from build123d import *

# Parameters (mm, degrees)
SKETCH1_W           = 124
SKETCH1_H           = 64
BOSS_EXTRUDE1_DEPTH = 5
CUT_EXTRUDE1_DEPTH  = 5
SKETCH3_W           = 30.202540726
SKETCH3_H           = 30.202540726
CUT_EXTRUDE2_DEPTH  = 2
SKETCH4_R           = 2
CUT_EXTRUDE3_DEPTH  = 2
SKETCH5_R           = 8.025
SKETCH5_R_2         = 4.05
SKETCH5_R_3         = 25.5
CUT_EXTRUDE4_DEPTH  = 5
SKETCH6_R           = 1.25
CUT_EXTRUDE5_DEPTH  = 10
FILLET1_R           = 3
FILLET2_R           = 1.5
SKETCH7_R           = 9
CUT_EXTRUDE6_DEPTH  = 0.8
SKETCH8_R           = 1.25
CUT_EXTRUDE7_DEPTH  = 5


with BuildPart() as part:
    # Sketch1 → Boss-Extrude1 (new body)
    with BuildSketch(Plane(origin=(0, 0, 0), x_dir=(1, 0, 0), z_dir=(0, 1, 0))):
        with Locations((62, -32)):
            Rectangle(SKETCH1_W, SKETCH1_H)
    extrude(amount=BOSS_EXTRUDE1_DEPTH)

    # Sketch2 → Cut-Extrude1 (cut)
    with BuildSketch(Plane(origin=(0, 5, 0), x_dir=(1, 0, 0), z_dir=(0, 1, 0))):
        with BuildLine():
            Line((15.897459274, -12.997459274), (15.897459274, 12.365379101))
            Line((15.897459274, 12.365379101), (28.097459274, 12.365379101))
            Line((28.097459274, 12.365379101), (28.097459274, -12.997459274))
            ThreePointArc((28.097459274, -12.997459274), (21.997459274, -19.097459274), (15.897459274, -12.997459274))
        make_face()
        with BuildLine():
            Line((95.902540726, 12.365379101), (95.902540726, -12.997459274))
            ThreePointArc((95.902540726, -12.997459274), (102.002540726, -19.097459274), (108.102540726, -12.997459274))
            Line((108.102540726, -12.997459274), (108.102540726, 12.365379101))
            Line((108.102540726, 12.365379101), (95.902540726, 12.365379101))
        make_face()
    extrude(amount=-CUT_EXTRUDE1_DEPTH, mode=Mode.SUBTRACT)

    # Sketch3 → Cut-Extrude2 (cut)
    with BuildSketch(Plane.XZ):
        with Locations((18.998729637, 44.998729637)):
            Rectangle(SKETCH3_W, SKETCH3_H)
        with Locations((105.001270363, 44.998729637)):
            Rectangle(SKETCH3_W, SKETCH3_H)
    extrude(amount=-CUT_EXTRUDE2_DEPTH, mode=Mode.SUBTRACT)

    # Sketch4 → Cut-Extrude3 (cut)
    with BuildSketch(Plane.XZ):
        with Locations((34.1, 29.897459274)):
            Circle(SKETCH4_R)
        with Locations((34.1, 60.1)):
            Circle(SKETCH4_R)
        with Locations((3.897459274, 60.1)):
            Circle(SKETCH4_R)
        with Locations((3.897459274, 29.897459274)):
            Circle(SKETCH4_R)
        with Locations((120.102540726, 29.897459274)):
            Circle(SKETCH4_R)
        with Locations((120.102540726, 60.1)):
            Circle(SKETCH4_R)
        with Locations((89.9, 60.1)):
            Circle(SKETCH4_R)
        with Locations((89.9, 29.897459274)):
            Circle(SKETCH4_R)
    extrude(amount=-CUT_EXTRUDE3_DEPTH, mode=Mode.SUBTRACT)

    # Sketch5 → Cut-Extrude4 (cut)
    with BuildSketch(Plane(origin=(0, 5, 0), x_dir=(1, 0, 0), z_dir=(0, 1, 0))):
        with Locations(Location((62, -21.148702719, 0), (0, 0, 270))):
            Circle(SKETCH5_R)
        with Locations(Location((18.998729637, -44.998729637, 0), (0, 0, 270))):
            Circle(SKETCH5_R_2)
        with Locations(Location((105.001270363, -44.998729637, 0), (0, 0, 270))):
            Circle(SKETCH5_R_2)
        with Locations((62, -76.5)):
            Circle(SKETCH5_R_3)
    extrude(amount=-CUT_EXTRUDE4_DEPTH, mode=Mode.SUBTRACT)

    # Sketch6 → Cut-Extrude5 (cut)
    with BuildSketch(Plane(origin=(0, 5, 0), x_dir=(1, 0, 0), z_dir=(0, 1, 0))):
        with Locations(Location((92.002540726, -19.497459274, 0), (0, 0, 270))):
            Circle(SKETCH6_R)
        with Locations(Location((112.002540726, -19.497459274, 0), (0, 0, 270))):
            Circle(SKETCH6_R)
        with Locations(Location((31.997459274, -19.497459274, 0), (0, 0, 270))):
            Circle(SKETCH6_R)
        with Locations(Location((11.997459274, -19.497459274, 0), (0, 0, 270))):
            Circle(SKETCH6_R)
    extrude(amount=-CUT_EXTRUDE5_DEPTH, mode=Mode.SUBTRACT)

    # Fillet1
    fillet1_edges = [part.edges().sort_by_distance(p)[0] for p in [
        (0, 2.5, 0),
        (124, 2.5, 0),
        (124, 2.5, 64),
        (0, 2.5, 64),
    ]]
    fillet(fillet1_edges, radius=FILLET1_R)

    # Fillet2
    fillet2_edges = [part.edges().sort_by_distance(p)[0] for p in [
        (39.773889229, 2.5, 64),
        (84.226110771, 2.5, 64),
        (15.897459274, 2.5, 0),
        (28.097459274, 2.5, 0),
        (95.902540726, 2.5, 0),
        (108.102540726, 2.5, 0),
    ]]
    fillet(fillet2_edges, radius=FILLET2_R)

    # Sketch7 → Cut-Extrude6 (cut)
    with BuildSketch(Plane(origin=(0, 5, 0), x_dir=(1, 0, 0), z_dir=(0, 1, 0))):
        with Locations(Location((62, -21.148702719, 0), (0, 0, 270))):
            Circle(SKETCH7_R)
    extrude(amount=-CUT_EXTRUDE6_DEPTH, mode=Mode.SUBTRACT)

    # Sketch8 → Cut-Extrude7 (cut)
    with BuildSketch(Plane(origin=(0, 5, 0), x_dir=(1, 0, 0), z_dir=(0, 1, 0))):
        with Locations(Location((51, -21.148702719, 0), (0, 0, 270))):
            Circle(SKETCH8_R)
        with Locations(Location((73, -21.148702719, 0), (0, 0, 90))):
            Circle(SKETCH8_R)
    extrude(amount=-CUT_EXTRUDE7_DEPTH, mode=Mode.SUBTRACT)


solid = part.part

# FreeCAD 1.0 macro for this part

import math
import FreeCAD as App
import Part
import Sketcher
from FreeCAD import Vector
Q = App.Units.Quantity


def edges_at(feature, points):
    """Names of the edges that pass closest to the given points."""
    edges = feature.Shape.Edges
    near = lambda p: min(range(len(edges)), key=lambda i: edges[i].distToShape(Part.Vertex(*p))[0])
    return sorted({f"Edge{near(p) + 1}" for p in points})


def add_polygon(sketch, points):
    """Adds a closed chain of lines whose ends are joined by coincident constraints."""
    first, n = sketch.GeometryCount, len(points)
    for a, b in zip(points, points[1:] + points[:1]):
        sketch.addGeometry(Part.LineSegment(App.Vector(*a, 0), App.Vector(*b, 0)), False)
    for i in range(n):
        sketch.addConstraint(Sketcher.Constraint("Coincident", first + i, 2, first + (i + 1) % n, 1))

doc = App.newDocument("Part")
body = doc.addObject("PartDesign::Body", "Body")

sketch1 = body.newObject("Sketcher::SketchObject", "Sketch")
sketch1.AttachmentSupport = (doc.getObject("XZ_Plane"), [""])
sketch1.MapMode = "FlatFace"
add_polygon(sketch1, [(0, 0), (0, 64), (124, 64), (124, 0)])
sketch1.addConstraint(Sketcher.Constraint("Vertical", 0))
sketch1.addConstraint(Sketcher.Constraint("Horizontal", 1))
sketch1.addConstraint(Sketcher.Constraint("Vertical", 2))
sketch1.addConstraint(Sketcher.Constraint("Horizontal", 3))
sketch1.addConstraint(Sketcher.Constraint("Coincident", 3, 2, -1, 1))
sketch1.addConstraint(Sketcher.Constraint("DistanceX", 1, 1, 1, 2, Q("124 mm")))
sketch1.addConstraint(Sketcher.Constraint("DistanceY", 0, 1, 0, 2, Q("64 mm")))
pad1 = body.newObject("PartDesign::Pad", "Pad")
pad1.Profile = sketch1
pad1.Length = 5
pad1.Reversed = True

sketch2 = body.newObject("Sketcher::SketchObject", "Sketch001")
sketch2.AttachmentSupport = (doc.getObject("XZ_Plane"), [""])
sketch2.MapMode = "FlatFace"
sketch2.AttachmentOffset = App.Placement(Vector(0, 0, -5), App.Rotation())
sketch2.addGeometry(Part.LineSegment(Vector(16, -12, 0), Vector(16, 13, 0)), False)
sketch2.addGeometry(Part.ArcOfCircle(Part.Circle(Vector(22, 13, 0), Vector(0, 0, 1), 6), math.radians(0), math.radians(180)), False)
sketch2.addGeometry(Part.LineSegment(Vector(28, 13, 0), Vector(28, -12, 0)), False)
sketch2.addGeometry(Part.LineSegment(Vector(28, -12, 0), Vector(16, -12, 0)), False)
sketch2.addGeometry(Part.LineSegment(Vector(96, -12, 0), Vector(96, 13, 0)), False)
sketch2.addGeometry(Part.ArcOfCircle(Part.Circle(Vector(102, 13, 0), Vector(0, 0, 1), 6), math.radians(0), math.radians(180)), False)
sketch2.addGeometry(Part.LineSegment(Vector(108, 13, 0), Vector(108, -12, 0)), False)
sketch2.addGeometry(Part.LineSegment(Vector(108, -12, 0), Vector(96, -12, 0)), False)
sketch2.addConstraint(Sketcher.Constraint("Tangent", 0, 2, 1, 2))
sketch2.addConstraint(Sketcher.Constraint("Tangent", 1, 1, 2, 1))
sketch2.addConstraint(Sketcher.Constraint("Coincident", 2, 2, 3, 1))
sketch2.addConstraint(Sketcher.Constraint("Coincident", 3, 2, 0, 1))
sketch2.addConstraint(Sketcher.Constraint("Tangent", 4, 2, 5, 2))
sketch2.addConstraint(Sketcher.Constraint("Tangent", 5, 1, 6, 1))
sketch2.addConstraint(Sketcher.Constraint("Coincident", 6, 2, 7, 1))
sketch2.addConstraint(Sketcher.Constraint("Coincident", 7, 2, 4, 1))
sketch2.addConstraint(Sketcher.Constraint("Vertical", 0))
sketch2.addConstraint(Sketcher.Constraint("Vertical", 2))
sketch2.addConstraint(Sketcher.Constraint("Horizontal", 3))
sketch2.addConstraint(Sketcher.Constraint("Vertical", 4))
sketch2.addConstraint(Sketcher.Constraint("Vertical", 6))
sketch2.addConstraint(Sketcher.Constraint("Horizontal", 7))
sketch2.addConstraint(Sketcher.Constraint("Equal", 1, 5))
sketch2.addConstraint(Sketcher.Constraint("Horizontal", 1, 3, 5, 3))
sketch2.addConstraint(Sketcher.Constraint("Horizontal", 3, 2, 6, 2))
sketch2.addConstraint(Sketcher.Constraint("Radius", 1, Q("6.1 mm")))
sketch2.addConstraint(Sketcher.Constraint("DistanceY", 0, 1, 0, 2, Q("25.362838 mm")))
sketch2.addConstraint(Sketcher.Constraint("DistanceX", -1, 1, 1, 3, Q("21.997459 mm")))
sketch2.addConstraint(Sketcher.Constraint("DistanceY", -1, 1, 1, 3, Q("12.997459 mm")))
sketch2.addConstraint(Sketcher.Constraint("DistanceX", -1, 1, 5, 3, Q("102.002541 mm")))
pocket1 = body.newObject("PartDesign::Pocket", "Pocket")
pocket1.Profile = sketch2
pocket1.Length = 5
pocket1.Reversed = True

sketch3 = body.newObject("Sketcher::SketchObject", "Sketch002")
sketch3.AttachmentSupport = (doc.getObject("XZ_Plane"), [""])
sketch3.MapMode = "FlatFace"
add_polygon(sketch3, [(4, 60), (4, 30), (34, 30), (34, 60)])
add_polygon(sketch3, [(90, 60), (90, 30), (120, 30), (120, 60)])
sketch3.addConstraint(Sketcher.Constraint("Vertical", 0))
sketch3.addConstraint(Sketcher.Constraint("Horizontal", 1))
sketch3.addConstraint(Sketcher.Constraint("Vertical", 2))
sketch3.addConstraint(Sketcher.Constraint("Horizontal", 3))
sketch3.addConstraint(Sketcher.Constraint("Vertical", 4))
sketch3.addConstraint(Sketcher.Constraint("Horizontal", 5))
sketch3.addConstraint(Sketcher.Constraint("Vertical", 6))
sketch3.addConstraint(Sketcher.Constraint("Horizontal", 7))
sketch3.addConstraint(Sketcher.Constraint("Horizontal", 1, 2, 4, 2))
sketch3.addConstraint(Sketcher.Constraint("Horizontal", 3, 2, 6, 2))
sketch3.addConstraint(Sketcher.Constraint("Equal", 3, 5))
sketch3.addConstraint(Sketcher.Constraint("Equal", 7, 0))
sketch3.addConstraint(Sketcher.Constraint("DistanceX", -1, 1, 1, 2, Q("34.1 mm")))
sketch3.addConstraint(Sketcher.Constraint("DistanceY", -1, 1, 2, 2, Q("60.1 mm")))
sketch3.addConstraint(Sketcher.Constraint("DistanceX", -1, 1, 4, 2, Q("89.9 mm")))
sketch3.addConstraint(Sketcher.Constraint("DistanceX", 1, 1, 1, 2, Q("30.202541 mm")))
pocket2 = body.newObject("PartDesign::Pocket", "Pocket001")
pocket2.Profile = sketch3
pocket2.Length = 2

sketch4 = body.newObject("Sketcher::SketchObject", "Sketch003")
sketch4.AttachmentSupport = (doc.getObject("XZ_Plane"), [""])
sketch4.MapMode = "FlatFace"
sketch4.addGeometry(Part.Circle(Vector(34.1, 29.9, 0), Vector(0, 0, 1), 2), False)
sketch4.addGeometry(Part.Circle(Vector(34.1, 60.1, 0), Vector(0, 0, 1), 2), False)
sketch4.addGeometry(Part.Circle(Vector(3.9, 60.1, 0), Vector(0, 0, 1), 2), False)
sketch4.addGeometry(Part.Circle(Vector(3.9, 29.9, 0), Vector(0, 0, 1), 2), False)
sketch4.addGeometry(Part.Circle(Vector(120.1, 29.9, 0), Vector(0, 0, 1), 2), False)
sketch4.addGeometry(Part.Circle(Vector(120.1, 60.1, 0), Vector(0, 0, 1), 2), False)
sketch4.addGeometry(Part.Circle(Vector(89.9, 60.1, 0), Vector(0, 0, 1), 2), False)
sketch4.addGeometry(Part.Circle(Vector(89.9, 29.9, 0), Vector(0, 0, 1), 2), False)
sketch4.addConstraint(Sketcher.Constraint("Equal", 0, 1))
sketch4.addConstraint(Sketcher.Constraint("Equal", 1, 2))
sketch4.addConstraint(Sketcher.Constraint("Equal", 2, 3))
sketch4.addConstraint(Sketcher.Constraint("Equal", 3, 4))
sketch4.addConstraint(Sketcher.Constraint("Equal", 4, 5))
sketch4.addConstraint(Sketcher.Constraint("Equal", 5, 6))
sketch4.addConstraint(Sketcher.Constraint("Equal", 6, 7))
sketch4.addConstraint(Sketcher.Constraint("Horizontal", 1, 3, 2, 3))
sketch4.addConstraint(Sketcher.Constraint("Horizontal", 0, 3, 3, 3))
sketch4.addConstraint(Sketcher.Constraint("Horizontal", 3, 3, 4, 3))
sketch4.addConstraint(Sketcher.Constraint("Horizontal", 2, 3, 5, 3))
sketch4.addConstraint(Sketcher.Constraint("Horizontal", 5, 3, 6, 3))
sketch4.addConstraint(Sketcher.Constraint("Horizontal", 4, 3, 7, 3))
sketch4.addConstraint(Sketcher.Constraint("Vertical", 0, 3, 1, 3))
sketch4.addConstraint(Sketcher.Constraint("Vertical", 2, 3, 3, 3))
sketch4.addConstraint(Sketcher.Constraint("Vertical", 4, 3, 5, 3))
sketch4.addConstraint(Sketcher.Constraint("Vertical", 6, 3, 7, 3))
sketch4.addConstraint(Sketcher.Constraint("Diameter", 0, Q("4 mm")))
sketch4.addConstraint(Sketcher.Constraint("DistanceX", -1, 1, 0, 3, Q("34.1 mm")))
sketch4.addConstraint(Sketcher.Constraint("DistanceY", -1, 1, 1, 3, Q("60.1 mm")))
sketch4.addConstraint(Sketcher.Constraint("DistanceX", -1, 1, 6, 3, Q("89.9 mm")))
sketch4.addConstraint(Sketcher.Constraint("DistanceY", -1, 1, 0, 3, Q("29.897459 mm")))
sketch4.addConstraint(Sketcher.Constraint("DistanceX", -1, 1, 2, 3, Q("3.897459 mm")))
sketch4.addConstraint(Sketcher.Constraint("DistanceX", -1, 1, 4, 3, Q("120.102541 mm")))
pocket3 = body.newObject("PartDesign::Pocket", "Pocket002")
pocket3.Profile = sketch4
pocket3.Length = 2

sketch5 = body.newObject("Sketcher::SketchObject", "Sketch004")
sketch5.AttachmentSupport = (doc.getObject("XZ_Plane"), [""])
sketch5.MapMode = "FlatFace"
sketch5.AttachmentOffset = App.Placement(Vector(0, 0, -5), App.Rotation())
sketch5.addGeometry(Part.Circle(Vector(62, 21.1, 0), Vector(0, 0, 1), 8), False)
sketch5.addGeometry(Part.Circle(Vector(19, 45, 0), Vector(0, 0, 1), 4), False)
sketch5.addGeometry(Part.Circle(Vector(105, 45, 0), Vector(0, 0, 1), 4), False)
sketch5.addGeometry(Part.Circle(Vector(62, 76.5, 0), Vector(0, 0, 1), 25.5), False)
sketch5.addConstraint(Sketcher.Constraint("Equal", 1, 2))
sketch5.addConstraint(Sketcher.Constraint("Horizontal", 1, 3, 2, 3))
sketch5.addConstraint(Sketcher.Constraint("Vertical", 0, 3, 3, 3))
sketch5.addConstraint(Sketcher.Constraint("Diameter", 3, Q("51 mm")))
sketch5.addConstraint(Sketcher.Constraint("Diameter", 1, Q("8.1 mm")))
sketch5.addConstraint(Sketcher.Constraint("Diameter", 0, Q("16.05 mm")))
sketch5.addConstraint(Sketcher.Constraint("DistanceX", -1, 1, 0, 3, Q("62 mm")))
sketch5.addConstraint(Sketcher.Constraint("DistanceY", -1, 1, 3, 3, Q("76.5 mm")))
sketch5.addConstraint(Sketcher.Constraint("DistanceX", -1, 1, 1, 3, Q("18.99873 mm")))
sketch5.addConstraint(Sketcher.Constraint("DistanceY", -1, 1, 1, 3, Q("44.99873 mm")))
sketch5.addConstraint(Sketcher.Constraint("DistanceX", -1, 1, 2, 3, Q("105.00127 mm")))
sketch5.addConstraint(Sketcher.Constraint("DistanceY", -1, 1, 0, 3, Q("21.148703 mm")))
pocket4 = body.newObject("PartDesign::Pocket", "Pocket003")
pocket4.Profile = sketch5
pocket4.Length = 5
pocket4.Reversed = True

sketch6 = body.newObject("Sketcher::SketchObject", "Sketch005")
sketch6.AttachmentSupport = (doc.getObject("XZ_Plane"), [""])
sketch6.MapMode = "FlatFace"
sketch6.AttachmentOffset = App.Placement(Vector(0, 0, -5), App.Rotation())
sketch6.addGeometry(Part.Circle(Vector(92, 19.5, 0), Vector(0, 0, 1), 1.2), False)
sketch6.addGeometry(Part.Circle(Vector(112, 19.5, 0), Vector(0, 0, 1), 1.2), False)
sketch6.addGeometry(Part.Circle(Vector(32, 19.5, 0), Vector(0, 0, 1), 1.2), False)
sketch6.addGeometry(Part.Circle(Vector(12, 19.5, 0), Vector(0, 0, 1), 1.2), False)
sketch6.addConstraint(Sketcher.Constraint("Equal", 0, 1))
sketch6.addConstraint(Sketcher.Constraint("Equal", 1, 2))
sketch6.addConstraint(Sketcher.Constraint("Equal", 2, 3))
sketch6.addConstraint(Sketcher.Constraint("Horizontal", 0, 3, 1, 3))
sketch6.addConstraint(Sketcher.Constraint("Horizontal", 1, 3, 2, 3))
sketch6.addConstraint(Sketcher.Constraint("Horizontal", 2, 3, 3, 3))
sketch6.addConstraint(Sketcher.Constraint("Diameter", 0, Q("2.5 mm")))
sketch6.addConstraint(Sketcher.Constraint("DistanceX", 0, 3, 1, 3, Q("20 mm")))
sketch6.addConstraint(Sketcher.Constraint("DistanceX", 3, 3, 2, 3, Q("20 mm")))
sketch6.addConstraint(Sketcher.Constraint("DistanceX", -1, 1, 0, 3, Q("92.002541 mm")))
sketch6.addConstraint(Sketcher.Constraint("DistanceY", -1, 1, 0, 3, Q("19.497459 mm")))
sketch6.addConstraint(Sketcher.Constraint("DistanceX", -1, 1, 2, 3, Q("31.997459 mm")))
pocket5 = body.newObject("PartDesign::Pocket", "Pocket004")
pocket5.Profile = sketch6
pocket5.Length = 10
pocket5.Reversed = True
doc.recompute()

fillet = body.newObject("PartDesign::Fillet", "Fillet")
fillet.Base = (pocket5, edges_at(pocket5, [
    (0, 2.5, 0),
    (124, 2.5, 0),
    (124, 2.5, 64),
    (0, 2.5, 64),
]))
fillet.Radius = 3
doc.recompute()

fillet2 = body.newObject("PartDesign::Fillet", "Fillet001")
fillet2.Base = (fillet, edges_at(fillet, [
    (39.774, 2.5, 64),
    (84.226, 2.5, 64),
    (15.897, 2.5, 0),
    (28.097, 2.5, 0),
    (95.903, 2.5, 0),
    (108.103, 2.5, 0),
]))
fillet2.Radius = 1.5

sketch7 = body.newObject("Sketcher::SketchObject", "Sketch006")
sketch7.AttachmentSupport = (doc.getObject("XZ_Plane"), [""])
sketch7.MapMode = "FlatFace"
sketch7.AttachmentOffset = App.Placement(Vector(0, 0, -5), App.Rotation())
sketch7.addGeometry(Part.Circle(Vector(62, 21, 0), Vector(0, 0, 1), 9), False)
sketch7.addConstraint(Sketcher.Constraint("Diameter", 0, Q("18 mm")))
sketch7.addConstraint(Sketcher.Constraint("DistanceX", -1, 1, 0, 3, Q("62 mm")))
sketch7.addConstraint(Sketcher.Constraint("DistanceY", -1, 1, 0, 3, Q("21.148703 mm")))
pocket6 = body.newObject("PartDesign::Pocket", "Pocket005")
pocket6.Profile = sketch7
pocket6.Length = 0.8
pocket6.Reversed = True

sketch8 = body.newObject("Sketcher::SketchObject", "Sketch007")
sketch8.AttachmentSupport = (doc.getObject("XZ_Plane"), [""])
sketch8.MapMode = "FlatFace"
sketch8.AttachmentOffset = App.Placement(Vector(0, 0, -5), App.Rotation())
sketch8.addGeometry(Part.Circle(Vector(51, 21.1, 0), Vector(0, 0, 1), 1.2), False)
sketch8.addGeometry(Part.Circle(Vector(73, 21.1, 0), Vector(0, 0, 1), 1.2), False)
sketch8.addConstraint(Sketcher.Constraint("Equal", 0, 1))
sketch8.addConstraint(Sketcher.Constraint("Horizontal", 0, 3, 1, 3))
sketch8.addConstraint(Sketcher.Constraint("Diameter", 0, Q("2.5 mm")))
sketch8.addConstraint(Sketcher.Constraint("DistanceX", -1, 1, 0, 3, Q("51 mm")))
sketch8.addConstraint(Sketcher.Constraint("DistanceX", -1, 1, 1, 3, Q("73 mm")))
sketch8.addConstraint(Sketcher.Constraint("DistanceY", -1, 1, 0, 3, Q("21.148703 mm")))
pocket7 = body.newObject("PartDesign::Pocket", "Pocket006")
pocket7.Profile = sketch8
pocket7.Length = 5
pocket7.Reversed = True

doc.recompute()
